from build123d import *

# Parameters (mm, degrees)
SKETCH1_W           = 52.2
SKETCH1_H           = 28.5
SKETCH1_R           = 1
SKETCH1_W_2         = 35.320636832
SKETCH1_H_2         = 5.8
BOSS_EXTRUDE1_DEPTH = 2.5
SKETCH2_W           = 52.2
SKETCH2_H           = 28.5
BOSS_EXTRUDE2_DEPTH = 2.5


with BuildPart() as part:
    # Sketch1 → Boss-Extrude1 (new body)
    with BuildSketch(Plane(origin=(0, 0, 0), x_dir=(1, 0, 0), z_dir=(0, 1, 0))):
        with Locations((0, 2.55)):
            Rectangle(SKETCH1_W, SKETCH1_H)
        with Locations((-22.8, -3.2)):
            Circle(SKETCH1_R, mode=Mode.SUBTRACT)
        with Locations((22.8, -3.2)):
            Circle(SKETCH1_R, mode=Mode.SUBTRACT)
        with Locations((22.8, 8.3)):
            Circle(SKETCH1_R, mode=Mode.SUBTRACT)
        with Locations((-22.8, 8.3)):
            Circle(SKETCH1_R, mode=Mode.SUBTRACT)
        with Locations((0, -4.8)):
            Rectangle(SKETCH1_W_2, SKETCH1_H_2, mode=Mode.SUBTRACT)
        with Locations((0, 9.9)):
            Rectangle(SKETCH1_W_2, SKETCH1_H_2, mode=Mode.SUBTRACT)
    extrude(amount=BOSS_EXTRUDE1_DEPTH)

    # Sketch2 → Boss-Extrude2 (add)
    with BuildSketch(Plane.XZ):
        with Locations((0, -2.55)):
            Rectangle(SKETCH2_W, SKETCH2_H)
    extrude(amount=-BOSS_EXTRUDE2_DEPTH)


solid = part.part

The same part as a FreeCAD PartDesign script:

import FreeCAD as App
import Part
import Sketcher

V = App.Vector
Q = App.Units.Quantity

doc = App.newDocument("Part")
body = doc.addObject("PartDesign::Body", "Body")

sketch1 = body.newObject("Sketcher::SketchObject", "Sketch")
sketch1.AttachmentSupport = (doc.getObject("XZ_Plane"), [""])
sketch1.MapMode = "FlatFace"
sketch1.addGeometry(Part.LineSegment(V(-26.1, -16.8, 0), V(-26.1, 11.7, 0)), False)
sketch1.addGeometry(Part.LineSegment(V(-26.1, 11.7, 0), V(26.1, 11.7, 0)), False)
sketch1.addGeometry(Part.LineSegment(V(26.1, 11.7, 0), V(26.1, -16.8, 0)), False)
sketch1.addGeometry(Part.LineSegment(V(26.1, -16.8, 0), V(-26.1, -16.8, 0)), False)
sketch1.addGeometry(Part.Circle(V(-22.8, 3.2, 0), V(0, 0, 1), 1), False)
sketch1.addGeometry(Part.LineSegment(V(17.660318, 7.7, 0), V(-17.660318, 7.7, 0)), False)
sketch1.addGeometry(Part.LineSegment(V(-17.660318, 7.7, 0), V(-17.660318, 1.9, 0)), False)
sketch1.addGeometry(Part.LineSegment(V(-17.660318, 1.9, 0), V(17.660318, 1.9, 0)), False)
sketch1.addGeometry(Part.LineSegment(V(17.660318, 1.9, 0), V(17.660318, 7.7, 0)), False)
sketch1.addGeometry(Part.Circle(V(22.8, 3.2, 0), V(0, 0, 1), 1), False)
sketch1.addGeometry(Part.Circle(V(-22.8, -8.3, 0), V(0, 0, 1), 1), False)
sketch1.addGeometry(Part.LineSegment(V(17.660318, -7, 0), V(-17.660318, -7, 0)), False)
sketch1.addGeometry(Part.LineSegment(V(-17.660318, -7, 0), V(-17.660318, -12.8, 0)), False)
sketch1.addGeometry(Part.LineSegment(V(-17.660318, -12.8, 0), V(17.660318, -12.8, 0)), False)
sketch1.addGeometry(Part.LineSegment(V(17.660318, -12.8, 0), V(17.660318, -7, 0)), False)
sketch1.addGeometry(Part.Circle(V(22.8, -8.3, 0), V(0, 0, 1), 1), False)
sketch1.addConstraint(Sketcher.Constraint("Coincident", 0, 2, 1, 1))
sketch1.addConstraint(Sketcher.Constraint("Coincident", 1, 2, 2, 1))
sketch1.addConstraint(Sketcher.Constraint("Coincident", 2, 2, 3, 1))
sketch1.addConstraint(Sketcher.Constraint("Coincident", 3, 2, 0, 1))
sketch1.addConstraint(Sketcher.Constraint("Coincident", 5, 2, 6, 1))
sketch1.addConstraint(Sketcher.Constraint("Coincident", 6, 2, 7, 1))
sketch1.addConstraint(Sketcher.Constraint("Coincident", 7, 2, 8, 1))
sketch1.addConstraint(Sketcher.Constraint("Coincident", 8, 2, 5, 1))
sketch1.addConstraint(Sketcher.Constraint("Coincident", 11, 2, 12, 1))
sketch1.addConstraint(Sketcher.Constraint("Coincident", 12, 2, 13, 1))
sketch1.addConstraint(Sketcher.Constraint("Coincident", 13, 2, 14, 1))
sketch1.addConstraint(Sketcher.Constraint("Coincident", 14, 2, 11, 1))
sketch1.addConstraint(Sketcher.Constraint("Vertical", 0))
sketch1.addConstraint(Sketcher.Constraint("Horizontal", 1))
sketch1.addConstraint(Sketcher.Constraint("Vertical", 2))
sketch1.addConstraint(Sketcher.Constraint("Horizontal", 3))
sketch1.addConstraint(Sketcher.Constraint("Horizontal", 5))
sketch1.addConstraint(Sketcher.Constraint("Vertical", 6))
sketch1.addConstraint(Sketcher.Constraint("Horizontal", 7))
sketch1.addConstraint(Sketcher.Constraint("Vertical", 8))
sketch1.addConstraint(Sketcher.Constraint("Horizontal", 11))
sketch1.addConstraint(Sketcher.Constraint("Vertical", 12))
sketch1.addConstraint(Sketcher.Constraint("Horizontal", 13))
sketch1.addConstraint(Sketcher.Constraint("Vertical", 14))
sketch1.addConstraint(Sketcher.Constraint("Equal", 4, 9))
sketch1.addConstraint(Sketcher.Constraint("Equal", 9, 10))
sketch1.addConstraint(Sketcher.Constraint("Equal", 10, 15))
sketch1.addConstraint(Sketcher.Constraint("Symmetric", 4, 3, 9, 3, -2))
sketch1.addConstraint(Sketcher.Constraint("Symmetric", 10, 3, 15, 3, -2))
sketch1.addConstraint(Sketcher.Constraint("Vertical", 4, 3, 10, 3))
sketch1.addConstraint(Sketcher.Constraint("Vertical", 6, 2, 11, 2))
sketch1.addConstraint(Sketcher.Constraint("Vertical", 8, 2, 13, 2))
sketch1.addConstraint(Sketcher.Constraint("Equal", 8, 12))
sketch1.addConstraint(Sketcher.Constraint("Diameter", 4, Q("2 mm")))
sketch1.addConstraint(Sketcher.Constraint("DistanceX", 1, 1, 1, 2, Q("52.2 mm")))
sketch1.addConstraint(Sketcher.Constraint("DistanceY", 0, 1, 0, 2, Q("28.5 mm")))
sketch1.addConstraint(Sketcher.Constraint("DistanceY", 6, 2, 6, 1, Q("5.8 mm")))
sketch1.addConstraint(Sketcher.Constraint("DistanceY", 11, 2, -1, 1, Q("7 mm")))
sketch1.addConstraint(Sketcher.Constraint("DistanceY", 10, 3, 0, 2, Q("20 mm")))
sketch1.addConstraint(Sketcher.Constraint("DistanceY", 2, 2, 9, 3, Q("20 mm")))
sketch1.addConstraint(Sketcher.Constraint("DistanceY", 5, 2, 0, 2, Q("4 mm")))
sketch1.addConstraint(Sketcher.Constraint("DistanceY", 3, 2, 12, 2, Q("4 mm")))
sketch1.addConstraint(Sketcher.Constraint("DistanceX", 4, 3, -1, 1, Q("22.8 mm")))
sketch1.addConstraint(Sketcher.Constraint("DistanceX", 0, 2, -1, 1, Q("26.1 mm")))
sketch1.addConstraint(Sketcher.Constraint("DistanceX", 5, 2, 5, 1, Q("35.320637 mm")))
sketch1.addConstraint(Sketcher.Constraint("DistanceX", 5, 2, -1, 1, Q("17.660318 mm")))
pad1 = body.newObject("PartDesign::Pad", "Pad")
pad1.Profile = sketch1
pad1.Length = 2.5
pad1.Reversed = True

sketch2 = body.newObject("Sketcher::SketchObject", "Sketch001")
sketch2.AttachmentSupport = (doc.getObject("XZ_Plane"), [""])
sketch2.MapMode = "FlatFace"
sketch2.addGeometry(Part.LineSegment(V(-26.1, 11.7, 0), V(-26.1, -16.8, 0)), False)
sketch2.addGeometry(Part.LineSegment(V(-26.1, -16.8, 0), V(26.1, -16.8, 0)), False)
sketch2.addGeometry(Part.LineSegment(V(26.1, -16.8, 0), V(26.1, 11.7, 0)), False)
sketch2.addGeometry(Part.LineSegment(V(26.1, 11.7, 0), V(-26.1, 11.7, 0)), False)
sketch2.addConstraint(Sketcher.Constraint("Coincident", 0, 2, 1, 1))
sketch2.addConstraint(Sketcher.Constraint("Coincident", 1, 2, 2, 1))
sketch2.addConstraint(Sketcher.Constraint("Coincident", 2, 2, 3, 1))
sketch2.addConstraint(Sketcher.Constraint("Coincident", 3, 2, 0, 1))
sketch2.addConstraint(Sketcher.Constraint("Vertical", 0))
sketch2.addConstraint(Sketcher.Constraint("Horizontal", 1))
sketch2.addConstraint(Sketcher.Constraint("Vertical", 2))
sketch2.addConstraint(Sketcher.Constraint("Horizontal", 3))
sketch2.addConstraint(Sketcher.Constraint("DistanceX", 1, 1, 1, 2, Q("52.2 mm")))
sketch2.addConstraint(Sketcher.Constraint("DistanceY", 0, 2, 0, 1, Q("28.5 mm")))
sketch2.addConstraint(Sketcher.Constraint("DistanceX", 0, 2, -1, 1, Q("26.1 mm")))
sketch2.addConstraint(Sketcher.Constraint("DistanceY", 0, 2, -1, 1, Q("16.8 mm")))
pad2 = body.newObject("PartDesign::Pad", "Pad001")
pad2.Profile = sketch2
pad2.Length = 2.5
pad2.Reversed = True

doc.recompute()
